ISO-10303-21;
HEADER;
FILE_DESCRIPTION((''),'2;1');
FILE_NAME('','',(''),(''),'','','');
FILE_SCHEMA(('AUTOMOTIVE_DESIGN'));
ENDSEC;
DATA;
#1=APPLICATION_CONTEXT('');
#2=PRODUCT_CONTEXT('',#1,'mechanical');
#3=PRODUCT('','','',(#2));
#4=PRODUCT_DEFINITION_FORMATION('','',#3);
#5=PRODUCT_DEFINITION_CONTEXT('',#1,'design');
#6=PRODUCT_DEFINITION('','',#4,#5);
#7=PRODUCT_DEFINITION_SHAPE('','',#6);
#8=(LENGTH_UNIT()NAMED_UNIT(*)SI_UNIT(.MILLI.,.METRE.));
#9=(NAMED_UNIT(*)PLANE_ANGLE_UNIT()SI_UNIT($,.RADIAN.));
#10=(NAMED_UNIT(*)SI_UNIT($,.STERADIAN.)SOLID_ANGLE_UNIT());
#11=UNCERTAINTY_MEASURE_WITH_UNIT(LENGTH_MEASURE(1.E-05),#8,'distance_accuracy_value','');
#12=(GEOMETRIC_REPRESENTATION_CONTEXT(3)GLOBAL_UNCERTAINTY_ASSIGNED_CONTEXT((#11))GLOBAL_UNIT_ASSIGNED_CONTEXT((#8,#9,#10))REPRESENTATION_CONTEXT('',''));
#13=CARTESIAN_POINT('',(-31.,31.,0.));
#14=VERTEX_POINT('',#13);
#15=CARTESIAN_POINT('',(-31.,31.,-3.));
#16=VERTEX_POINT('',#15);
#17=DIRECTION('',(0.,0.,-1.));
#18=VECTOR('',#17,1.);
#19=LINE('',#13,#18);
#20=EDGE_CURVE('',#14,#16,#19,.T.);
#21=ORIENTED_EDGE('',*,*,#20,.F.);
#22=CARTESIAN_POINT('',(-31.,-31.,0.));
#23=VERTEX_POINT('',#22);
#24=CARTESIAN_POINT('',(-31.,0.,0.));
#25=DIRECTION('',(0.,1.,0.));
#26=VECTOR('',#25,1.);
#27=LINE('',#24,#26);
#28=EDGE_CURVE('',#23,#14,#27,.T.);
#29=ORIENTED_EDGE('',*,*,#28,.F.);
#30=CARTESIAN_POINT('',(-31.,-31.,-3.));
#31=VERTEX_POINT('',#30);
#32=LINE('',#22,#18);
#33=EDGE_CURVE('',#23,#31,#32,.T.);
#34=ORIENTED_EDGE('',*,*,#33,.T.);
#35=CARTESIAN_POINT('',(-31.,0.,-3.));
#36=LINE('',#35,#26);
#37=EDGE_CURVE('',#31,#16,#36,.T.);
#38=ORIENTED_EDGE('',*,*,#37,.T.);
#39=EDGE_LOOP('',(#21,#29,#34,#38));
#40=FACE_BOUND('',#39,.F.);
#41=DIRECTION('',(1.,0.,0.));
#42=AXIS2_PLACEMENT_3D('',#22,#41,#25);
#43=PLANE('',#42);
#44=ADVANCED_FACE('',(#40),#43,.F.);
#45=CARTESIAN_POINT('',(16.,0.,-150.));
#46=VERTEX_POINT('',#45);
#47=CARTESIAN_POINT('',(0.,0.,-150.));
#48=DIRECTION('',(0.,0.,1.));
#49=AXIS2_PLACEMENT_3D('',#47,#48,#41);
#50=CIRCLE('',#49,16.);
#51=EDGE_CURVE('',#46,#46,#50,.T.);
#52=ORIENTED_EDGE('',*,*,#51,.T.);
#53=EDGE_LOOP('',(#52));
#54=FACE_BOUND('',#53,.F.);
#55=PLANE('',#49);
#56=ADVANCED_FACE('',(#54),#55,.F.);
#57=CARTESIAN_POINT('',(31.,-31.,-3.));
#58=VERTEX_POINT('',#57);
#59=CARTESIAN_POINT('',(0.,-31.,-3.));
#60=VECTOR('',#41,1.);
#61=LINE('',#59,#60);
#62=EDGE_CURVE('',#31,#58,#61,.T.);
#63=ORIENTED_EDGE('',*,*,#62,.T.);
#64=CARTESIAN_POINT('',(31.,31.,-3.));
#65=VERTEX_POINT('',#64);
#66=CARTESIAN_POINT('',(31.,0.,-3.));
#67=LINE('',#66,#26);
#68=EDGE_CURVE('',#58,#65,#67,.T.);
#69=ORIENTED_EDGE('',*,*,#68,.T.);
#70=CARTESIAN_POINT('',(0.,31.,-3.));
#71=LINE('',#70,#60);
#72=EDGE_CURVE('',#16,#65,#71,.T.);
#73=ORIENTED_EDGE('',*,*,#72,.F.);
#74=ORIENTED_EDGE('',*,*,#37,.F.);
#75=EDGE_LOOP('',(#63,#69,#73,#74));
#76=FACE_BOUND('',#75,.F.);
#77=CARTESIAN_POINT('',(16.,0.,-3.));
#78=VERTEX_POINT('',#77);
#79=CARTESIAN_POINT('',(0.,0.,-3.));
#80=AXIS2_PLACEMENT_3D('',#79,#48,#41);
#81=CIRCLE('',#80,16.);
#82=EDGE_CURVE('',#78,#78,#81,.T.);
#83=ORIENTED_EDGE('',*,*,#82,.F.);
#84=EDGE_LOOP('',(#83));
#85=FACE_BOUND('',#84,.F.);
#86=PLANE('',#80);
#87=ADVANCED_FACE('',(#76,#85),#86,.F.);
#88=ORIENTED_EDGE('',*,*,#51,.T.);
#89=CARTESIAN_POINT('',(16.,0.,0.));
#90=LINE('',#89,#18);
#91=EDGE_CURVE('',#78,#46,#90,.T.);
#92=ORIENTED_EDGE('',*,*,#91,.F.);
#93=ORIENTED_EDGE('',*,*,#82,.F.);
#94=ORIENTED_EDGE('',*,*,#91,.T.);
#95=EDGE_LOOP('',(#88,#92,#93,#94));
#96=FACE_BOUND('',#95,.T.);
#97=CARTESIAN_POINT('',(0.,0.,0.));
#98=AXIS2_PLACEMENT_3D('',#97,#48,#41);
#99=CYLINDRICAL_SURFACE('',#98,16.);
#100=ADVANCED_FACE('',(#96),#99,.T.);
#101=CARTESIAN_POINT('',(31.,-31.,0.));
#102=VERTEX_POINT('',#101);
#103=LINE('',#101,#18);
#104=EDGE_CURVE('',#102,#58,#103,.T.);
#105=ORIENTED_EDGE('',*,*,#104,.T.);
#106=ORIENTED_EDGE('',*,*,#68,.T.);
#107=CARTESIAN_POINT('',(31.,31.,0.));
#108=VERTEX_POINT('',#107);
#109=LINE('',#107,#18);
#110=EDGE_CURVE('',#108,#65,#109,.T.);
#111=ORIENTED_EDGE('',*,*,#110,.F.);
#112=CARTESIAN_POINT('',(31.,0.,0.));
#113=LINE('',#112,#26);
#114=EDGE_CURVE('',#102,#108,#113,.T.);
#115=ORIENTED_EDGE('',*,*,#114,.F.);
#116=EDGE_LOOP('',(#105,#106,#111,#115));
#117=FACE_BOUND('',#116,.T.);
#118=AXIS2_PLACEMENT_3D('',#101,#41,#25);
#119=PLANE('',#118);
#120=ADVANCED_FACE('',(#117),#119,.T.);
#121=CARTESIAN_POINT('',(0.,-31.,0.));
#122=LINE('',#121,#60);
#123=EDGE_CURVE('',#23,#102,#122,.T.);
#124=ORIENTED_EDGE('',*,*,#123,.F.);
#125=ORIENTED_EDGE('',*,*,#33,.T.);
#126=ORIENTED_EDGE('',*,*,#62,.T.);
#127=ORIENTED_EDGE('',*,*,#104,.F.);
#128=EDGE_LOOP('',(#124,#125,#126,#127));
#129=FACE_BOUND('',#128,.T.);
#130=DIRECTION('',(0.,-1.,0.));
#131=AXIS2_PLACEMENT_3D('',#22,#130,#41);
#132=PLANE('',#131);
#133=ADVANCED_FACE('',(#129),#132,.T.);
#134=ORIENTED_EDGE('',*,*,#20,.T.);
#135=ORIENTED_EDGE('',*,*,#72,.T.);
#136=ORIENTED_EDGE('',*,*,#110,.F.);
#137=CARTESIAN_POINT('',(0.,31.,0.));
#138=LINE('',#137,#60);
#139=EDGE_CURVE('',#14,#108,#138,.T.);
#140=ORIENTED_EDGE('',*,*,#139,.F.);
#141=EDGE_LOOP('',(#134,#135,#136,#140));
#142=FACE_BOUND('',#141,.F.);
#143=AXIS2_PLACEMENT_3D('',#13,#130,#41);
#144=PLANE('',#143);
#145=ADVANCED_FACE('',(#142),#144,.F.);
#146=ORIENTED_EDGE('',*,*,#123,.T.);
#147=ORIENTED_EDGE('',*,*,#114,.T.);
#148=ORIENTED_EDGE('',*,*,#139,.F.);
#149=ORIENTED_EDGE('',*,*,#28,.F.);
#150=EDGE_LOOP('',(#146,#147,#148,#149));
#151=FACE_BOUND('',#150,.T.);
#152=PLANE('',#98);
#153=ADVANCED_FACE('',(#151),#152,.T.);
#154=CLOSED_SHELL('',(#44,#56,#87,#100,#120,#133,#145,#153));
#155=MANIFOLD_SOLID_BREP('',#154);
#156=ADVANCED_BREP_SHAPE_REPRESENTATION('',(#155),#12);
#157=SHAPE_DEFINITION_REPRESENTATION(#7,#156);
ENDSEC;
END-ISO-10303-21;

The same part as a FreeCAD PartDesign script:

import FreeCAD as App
import Part
import Sketcher

V = App.Vector
Q = App.Units.Quantity

doc = App.newDocument("Part")
body = doc.addObject("PartDesign::Body", "Body")

# Sketch on XY plane
sketch1 = body.newObject("Sketcher::SketchObject", "Sketch")
sketch1.AttachmentSupport = (doc.getObject("XY_Plane"), [""])
sketch1.MapMode = "FlatFace"
sketch1.addGeometry(Part.Circle(V(0, 0, 0), V(0, 0, 1), 16), False)
sketch1.addConstraint(Sketcher.Constraint("Coincident", 0, 3, -1, 1))
sketch1.addConstraint(Sketcher.Constraint("Diameter", 0, Q("32 mm")))
pad1 = body.newObject("PartDesign::Pad", "Pad")
pad1.Profile = sketch1
pad1.Length = 150
pad1.Reversed = True

# Sketch on XY plane
sketch2 = body.newObject("Sketcher::SketchObject", "Sketch001")
sketch2.AttachmentSupport = (doc.getObject("XY_Plane"), [""])
sketch2.MapMode = "FlatFace"
sketch2.addGeometry(Part.LineSegment(V(-31, 31, 0), V(-31, -31, 0)), False)
sketch2.addGeometry(Part.LineSegment(V(-31, -31, 0), V(31, -31, 0)), False)
sketch2.addGeometry(Part.LineSegment(V(31, -31, 0), V(31, 31, 0)), False)
sketch2.addGeometry(Part.LineSegment(V(31, 31, 0), V(-31, 31, 0)), False)
sketch2.addConstraint(Sketcher.Constraint("Coincident", 0, 2, 1, 1))
sketch2.addConstraint(Sketcher.Constraint("Coincident", 1, 2, 2, 1))
sketch2.addConstraint(Sketcher.Constraint("Coincident", 2, 2, 3, 1))
sketch2.addConstraint(Sketcher.Constraint("Coincident", 3, 2, 0, 1))
sketch2.addConstraint(Sketcher.Constraint("Vertical", 0))
sketch2.addConstraint(Sketcher.Constraint("Horizontal", 1))
sketch2.addConstraint(Sketcher.Constraint("Vertical", 2))
sketch2.addConstraint(Sketcher.Constraint("Horizontal", 3))
sketch2.addConstraint(Sketcher.Constraint("Symmetric", 0, 2, 2, 2, -1, 1))
sketch2.addConstraint(Sketcher.Constraint("Equal", 3, 0))
sketch2.addConstraint(Sketcher.Constraint("DistanceX", 1, 1, 1, 2, Q("62 mm")))
pad2 = body.newObject("PartDesign::Pad", "Pad001")
pad2.Profile = sketch2
pad2.Length = 3
pad2.Reversed = True

doc.recompute()
